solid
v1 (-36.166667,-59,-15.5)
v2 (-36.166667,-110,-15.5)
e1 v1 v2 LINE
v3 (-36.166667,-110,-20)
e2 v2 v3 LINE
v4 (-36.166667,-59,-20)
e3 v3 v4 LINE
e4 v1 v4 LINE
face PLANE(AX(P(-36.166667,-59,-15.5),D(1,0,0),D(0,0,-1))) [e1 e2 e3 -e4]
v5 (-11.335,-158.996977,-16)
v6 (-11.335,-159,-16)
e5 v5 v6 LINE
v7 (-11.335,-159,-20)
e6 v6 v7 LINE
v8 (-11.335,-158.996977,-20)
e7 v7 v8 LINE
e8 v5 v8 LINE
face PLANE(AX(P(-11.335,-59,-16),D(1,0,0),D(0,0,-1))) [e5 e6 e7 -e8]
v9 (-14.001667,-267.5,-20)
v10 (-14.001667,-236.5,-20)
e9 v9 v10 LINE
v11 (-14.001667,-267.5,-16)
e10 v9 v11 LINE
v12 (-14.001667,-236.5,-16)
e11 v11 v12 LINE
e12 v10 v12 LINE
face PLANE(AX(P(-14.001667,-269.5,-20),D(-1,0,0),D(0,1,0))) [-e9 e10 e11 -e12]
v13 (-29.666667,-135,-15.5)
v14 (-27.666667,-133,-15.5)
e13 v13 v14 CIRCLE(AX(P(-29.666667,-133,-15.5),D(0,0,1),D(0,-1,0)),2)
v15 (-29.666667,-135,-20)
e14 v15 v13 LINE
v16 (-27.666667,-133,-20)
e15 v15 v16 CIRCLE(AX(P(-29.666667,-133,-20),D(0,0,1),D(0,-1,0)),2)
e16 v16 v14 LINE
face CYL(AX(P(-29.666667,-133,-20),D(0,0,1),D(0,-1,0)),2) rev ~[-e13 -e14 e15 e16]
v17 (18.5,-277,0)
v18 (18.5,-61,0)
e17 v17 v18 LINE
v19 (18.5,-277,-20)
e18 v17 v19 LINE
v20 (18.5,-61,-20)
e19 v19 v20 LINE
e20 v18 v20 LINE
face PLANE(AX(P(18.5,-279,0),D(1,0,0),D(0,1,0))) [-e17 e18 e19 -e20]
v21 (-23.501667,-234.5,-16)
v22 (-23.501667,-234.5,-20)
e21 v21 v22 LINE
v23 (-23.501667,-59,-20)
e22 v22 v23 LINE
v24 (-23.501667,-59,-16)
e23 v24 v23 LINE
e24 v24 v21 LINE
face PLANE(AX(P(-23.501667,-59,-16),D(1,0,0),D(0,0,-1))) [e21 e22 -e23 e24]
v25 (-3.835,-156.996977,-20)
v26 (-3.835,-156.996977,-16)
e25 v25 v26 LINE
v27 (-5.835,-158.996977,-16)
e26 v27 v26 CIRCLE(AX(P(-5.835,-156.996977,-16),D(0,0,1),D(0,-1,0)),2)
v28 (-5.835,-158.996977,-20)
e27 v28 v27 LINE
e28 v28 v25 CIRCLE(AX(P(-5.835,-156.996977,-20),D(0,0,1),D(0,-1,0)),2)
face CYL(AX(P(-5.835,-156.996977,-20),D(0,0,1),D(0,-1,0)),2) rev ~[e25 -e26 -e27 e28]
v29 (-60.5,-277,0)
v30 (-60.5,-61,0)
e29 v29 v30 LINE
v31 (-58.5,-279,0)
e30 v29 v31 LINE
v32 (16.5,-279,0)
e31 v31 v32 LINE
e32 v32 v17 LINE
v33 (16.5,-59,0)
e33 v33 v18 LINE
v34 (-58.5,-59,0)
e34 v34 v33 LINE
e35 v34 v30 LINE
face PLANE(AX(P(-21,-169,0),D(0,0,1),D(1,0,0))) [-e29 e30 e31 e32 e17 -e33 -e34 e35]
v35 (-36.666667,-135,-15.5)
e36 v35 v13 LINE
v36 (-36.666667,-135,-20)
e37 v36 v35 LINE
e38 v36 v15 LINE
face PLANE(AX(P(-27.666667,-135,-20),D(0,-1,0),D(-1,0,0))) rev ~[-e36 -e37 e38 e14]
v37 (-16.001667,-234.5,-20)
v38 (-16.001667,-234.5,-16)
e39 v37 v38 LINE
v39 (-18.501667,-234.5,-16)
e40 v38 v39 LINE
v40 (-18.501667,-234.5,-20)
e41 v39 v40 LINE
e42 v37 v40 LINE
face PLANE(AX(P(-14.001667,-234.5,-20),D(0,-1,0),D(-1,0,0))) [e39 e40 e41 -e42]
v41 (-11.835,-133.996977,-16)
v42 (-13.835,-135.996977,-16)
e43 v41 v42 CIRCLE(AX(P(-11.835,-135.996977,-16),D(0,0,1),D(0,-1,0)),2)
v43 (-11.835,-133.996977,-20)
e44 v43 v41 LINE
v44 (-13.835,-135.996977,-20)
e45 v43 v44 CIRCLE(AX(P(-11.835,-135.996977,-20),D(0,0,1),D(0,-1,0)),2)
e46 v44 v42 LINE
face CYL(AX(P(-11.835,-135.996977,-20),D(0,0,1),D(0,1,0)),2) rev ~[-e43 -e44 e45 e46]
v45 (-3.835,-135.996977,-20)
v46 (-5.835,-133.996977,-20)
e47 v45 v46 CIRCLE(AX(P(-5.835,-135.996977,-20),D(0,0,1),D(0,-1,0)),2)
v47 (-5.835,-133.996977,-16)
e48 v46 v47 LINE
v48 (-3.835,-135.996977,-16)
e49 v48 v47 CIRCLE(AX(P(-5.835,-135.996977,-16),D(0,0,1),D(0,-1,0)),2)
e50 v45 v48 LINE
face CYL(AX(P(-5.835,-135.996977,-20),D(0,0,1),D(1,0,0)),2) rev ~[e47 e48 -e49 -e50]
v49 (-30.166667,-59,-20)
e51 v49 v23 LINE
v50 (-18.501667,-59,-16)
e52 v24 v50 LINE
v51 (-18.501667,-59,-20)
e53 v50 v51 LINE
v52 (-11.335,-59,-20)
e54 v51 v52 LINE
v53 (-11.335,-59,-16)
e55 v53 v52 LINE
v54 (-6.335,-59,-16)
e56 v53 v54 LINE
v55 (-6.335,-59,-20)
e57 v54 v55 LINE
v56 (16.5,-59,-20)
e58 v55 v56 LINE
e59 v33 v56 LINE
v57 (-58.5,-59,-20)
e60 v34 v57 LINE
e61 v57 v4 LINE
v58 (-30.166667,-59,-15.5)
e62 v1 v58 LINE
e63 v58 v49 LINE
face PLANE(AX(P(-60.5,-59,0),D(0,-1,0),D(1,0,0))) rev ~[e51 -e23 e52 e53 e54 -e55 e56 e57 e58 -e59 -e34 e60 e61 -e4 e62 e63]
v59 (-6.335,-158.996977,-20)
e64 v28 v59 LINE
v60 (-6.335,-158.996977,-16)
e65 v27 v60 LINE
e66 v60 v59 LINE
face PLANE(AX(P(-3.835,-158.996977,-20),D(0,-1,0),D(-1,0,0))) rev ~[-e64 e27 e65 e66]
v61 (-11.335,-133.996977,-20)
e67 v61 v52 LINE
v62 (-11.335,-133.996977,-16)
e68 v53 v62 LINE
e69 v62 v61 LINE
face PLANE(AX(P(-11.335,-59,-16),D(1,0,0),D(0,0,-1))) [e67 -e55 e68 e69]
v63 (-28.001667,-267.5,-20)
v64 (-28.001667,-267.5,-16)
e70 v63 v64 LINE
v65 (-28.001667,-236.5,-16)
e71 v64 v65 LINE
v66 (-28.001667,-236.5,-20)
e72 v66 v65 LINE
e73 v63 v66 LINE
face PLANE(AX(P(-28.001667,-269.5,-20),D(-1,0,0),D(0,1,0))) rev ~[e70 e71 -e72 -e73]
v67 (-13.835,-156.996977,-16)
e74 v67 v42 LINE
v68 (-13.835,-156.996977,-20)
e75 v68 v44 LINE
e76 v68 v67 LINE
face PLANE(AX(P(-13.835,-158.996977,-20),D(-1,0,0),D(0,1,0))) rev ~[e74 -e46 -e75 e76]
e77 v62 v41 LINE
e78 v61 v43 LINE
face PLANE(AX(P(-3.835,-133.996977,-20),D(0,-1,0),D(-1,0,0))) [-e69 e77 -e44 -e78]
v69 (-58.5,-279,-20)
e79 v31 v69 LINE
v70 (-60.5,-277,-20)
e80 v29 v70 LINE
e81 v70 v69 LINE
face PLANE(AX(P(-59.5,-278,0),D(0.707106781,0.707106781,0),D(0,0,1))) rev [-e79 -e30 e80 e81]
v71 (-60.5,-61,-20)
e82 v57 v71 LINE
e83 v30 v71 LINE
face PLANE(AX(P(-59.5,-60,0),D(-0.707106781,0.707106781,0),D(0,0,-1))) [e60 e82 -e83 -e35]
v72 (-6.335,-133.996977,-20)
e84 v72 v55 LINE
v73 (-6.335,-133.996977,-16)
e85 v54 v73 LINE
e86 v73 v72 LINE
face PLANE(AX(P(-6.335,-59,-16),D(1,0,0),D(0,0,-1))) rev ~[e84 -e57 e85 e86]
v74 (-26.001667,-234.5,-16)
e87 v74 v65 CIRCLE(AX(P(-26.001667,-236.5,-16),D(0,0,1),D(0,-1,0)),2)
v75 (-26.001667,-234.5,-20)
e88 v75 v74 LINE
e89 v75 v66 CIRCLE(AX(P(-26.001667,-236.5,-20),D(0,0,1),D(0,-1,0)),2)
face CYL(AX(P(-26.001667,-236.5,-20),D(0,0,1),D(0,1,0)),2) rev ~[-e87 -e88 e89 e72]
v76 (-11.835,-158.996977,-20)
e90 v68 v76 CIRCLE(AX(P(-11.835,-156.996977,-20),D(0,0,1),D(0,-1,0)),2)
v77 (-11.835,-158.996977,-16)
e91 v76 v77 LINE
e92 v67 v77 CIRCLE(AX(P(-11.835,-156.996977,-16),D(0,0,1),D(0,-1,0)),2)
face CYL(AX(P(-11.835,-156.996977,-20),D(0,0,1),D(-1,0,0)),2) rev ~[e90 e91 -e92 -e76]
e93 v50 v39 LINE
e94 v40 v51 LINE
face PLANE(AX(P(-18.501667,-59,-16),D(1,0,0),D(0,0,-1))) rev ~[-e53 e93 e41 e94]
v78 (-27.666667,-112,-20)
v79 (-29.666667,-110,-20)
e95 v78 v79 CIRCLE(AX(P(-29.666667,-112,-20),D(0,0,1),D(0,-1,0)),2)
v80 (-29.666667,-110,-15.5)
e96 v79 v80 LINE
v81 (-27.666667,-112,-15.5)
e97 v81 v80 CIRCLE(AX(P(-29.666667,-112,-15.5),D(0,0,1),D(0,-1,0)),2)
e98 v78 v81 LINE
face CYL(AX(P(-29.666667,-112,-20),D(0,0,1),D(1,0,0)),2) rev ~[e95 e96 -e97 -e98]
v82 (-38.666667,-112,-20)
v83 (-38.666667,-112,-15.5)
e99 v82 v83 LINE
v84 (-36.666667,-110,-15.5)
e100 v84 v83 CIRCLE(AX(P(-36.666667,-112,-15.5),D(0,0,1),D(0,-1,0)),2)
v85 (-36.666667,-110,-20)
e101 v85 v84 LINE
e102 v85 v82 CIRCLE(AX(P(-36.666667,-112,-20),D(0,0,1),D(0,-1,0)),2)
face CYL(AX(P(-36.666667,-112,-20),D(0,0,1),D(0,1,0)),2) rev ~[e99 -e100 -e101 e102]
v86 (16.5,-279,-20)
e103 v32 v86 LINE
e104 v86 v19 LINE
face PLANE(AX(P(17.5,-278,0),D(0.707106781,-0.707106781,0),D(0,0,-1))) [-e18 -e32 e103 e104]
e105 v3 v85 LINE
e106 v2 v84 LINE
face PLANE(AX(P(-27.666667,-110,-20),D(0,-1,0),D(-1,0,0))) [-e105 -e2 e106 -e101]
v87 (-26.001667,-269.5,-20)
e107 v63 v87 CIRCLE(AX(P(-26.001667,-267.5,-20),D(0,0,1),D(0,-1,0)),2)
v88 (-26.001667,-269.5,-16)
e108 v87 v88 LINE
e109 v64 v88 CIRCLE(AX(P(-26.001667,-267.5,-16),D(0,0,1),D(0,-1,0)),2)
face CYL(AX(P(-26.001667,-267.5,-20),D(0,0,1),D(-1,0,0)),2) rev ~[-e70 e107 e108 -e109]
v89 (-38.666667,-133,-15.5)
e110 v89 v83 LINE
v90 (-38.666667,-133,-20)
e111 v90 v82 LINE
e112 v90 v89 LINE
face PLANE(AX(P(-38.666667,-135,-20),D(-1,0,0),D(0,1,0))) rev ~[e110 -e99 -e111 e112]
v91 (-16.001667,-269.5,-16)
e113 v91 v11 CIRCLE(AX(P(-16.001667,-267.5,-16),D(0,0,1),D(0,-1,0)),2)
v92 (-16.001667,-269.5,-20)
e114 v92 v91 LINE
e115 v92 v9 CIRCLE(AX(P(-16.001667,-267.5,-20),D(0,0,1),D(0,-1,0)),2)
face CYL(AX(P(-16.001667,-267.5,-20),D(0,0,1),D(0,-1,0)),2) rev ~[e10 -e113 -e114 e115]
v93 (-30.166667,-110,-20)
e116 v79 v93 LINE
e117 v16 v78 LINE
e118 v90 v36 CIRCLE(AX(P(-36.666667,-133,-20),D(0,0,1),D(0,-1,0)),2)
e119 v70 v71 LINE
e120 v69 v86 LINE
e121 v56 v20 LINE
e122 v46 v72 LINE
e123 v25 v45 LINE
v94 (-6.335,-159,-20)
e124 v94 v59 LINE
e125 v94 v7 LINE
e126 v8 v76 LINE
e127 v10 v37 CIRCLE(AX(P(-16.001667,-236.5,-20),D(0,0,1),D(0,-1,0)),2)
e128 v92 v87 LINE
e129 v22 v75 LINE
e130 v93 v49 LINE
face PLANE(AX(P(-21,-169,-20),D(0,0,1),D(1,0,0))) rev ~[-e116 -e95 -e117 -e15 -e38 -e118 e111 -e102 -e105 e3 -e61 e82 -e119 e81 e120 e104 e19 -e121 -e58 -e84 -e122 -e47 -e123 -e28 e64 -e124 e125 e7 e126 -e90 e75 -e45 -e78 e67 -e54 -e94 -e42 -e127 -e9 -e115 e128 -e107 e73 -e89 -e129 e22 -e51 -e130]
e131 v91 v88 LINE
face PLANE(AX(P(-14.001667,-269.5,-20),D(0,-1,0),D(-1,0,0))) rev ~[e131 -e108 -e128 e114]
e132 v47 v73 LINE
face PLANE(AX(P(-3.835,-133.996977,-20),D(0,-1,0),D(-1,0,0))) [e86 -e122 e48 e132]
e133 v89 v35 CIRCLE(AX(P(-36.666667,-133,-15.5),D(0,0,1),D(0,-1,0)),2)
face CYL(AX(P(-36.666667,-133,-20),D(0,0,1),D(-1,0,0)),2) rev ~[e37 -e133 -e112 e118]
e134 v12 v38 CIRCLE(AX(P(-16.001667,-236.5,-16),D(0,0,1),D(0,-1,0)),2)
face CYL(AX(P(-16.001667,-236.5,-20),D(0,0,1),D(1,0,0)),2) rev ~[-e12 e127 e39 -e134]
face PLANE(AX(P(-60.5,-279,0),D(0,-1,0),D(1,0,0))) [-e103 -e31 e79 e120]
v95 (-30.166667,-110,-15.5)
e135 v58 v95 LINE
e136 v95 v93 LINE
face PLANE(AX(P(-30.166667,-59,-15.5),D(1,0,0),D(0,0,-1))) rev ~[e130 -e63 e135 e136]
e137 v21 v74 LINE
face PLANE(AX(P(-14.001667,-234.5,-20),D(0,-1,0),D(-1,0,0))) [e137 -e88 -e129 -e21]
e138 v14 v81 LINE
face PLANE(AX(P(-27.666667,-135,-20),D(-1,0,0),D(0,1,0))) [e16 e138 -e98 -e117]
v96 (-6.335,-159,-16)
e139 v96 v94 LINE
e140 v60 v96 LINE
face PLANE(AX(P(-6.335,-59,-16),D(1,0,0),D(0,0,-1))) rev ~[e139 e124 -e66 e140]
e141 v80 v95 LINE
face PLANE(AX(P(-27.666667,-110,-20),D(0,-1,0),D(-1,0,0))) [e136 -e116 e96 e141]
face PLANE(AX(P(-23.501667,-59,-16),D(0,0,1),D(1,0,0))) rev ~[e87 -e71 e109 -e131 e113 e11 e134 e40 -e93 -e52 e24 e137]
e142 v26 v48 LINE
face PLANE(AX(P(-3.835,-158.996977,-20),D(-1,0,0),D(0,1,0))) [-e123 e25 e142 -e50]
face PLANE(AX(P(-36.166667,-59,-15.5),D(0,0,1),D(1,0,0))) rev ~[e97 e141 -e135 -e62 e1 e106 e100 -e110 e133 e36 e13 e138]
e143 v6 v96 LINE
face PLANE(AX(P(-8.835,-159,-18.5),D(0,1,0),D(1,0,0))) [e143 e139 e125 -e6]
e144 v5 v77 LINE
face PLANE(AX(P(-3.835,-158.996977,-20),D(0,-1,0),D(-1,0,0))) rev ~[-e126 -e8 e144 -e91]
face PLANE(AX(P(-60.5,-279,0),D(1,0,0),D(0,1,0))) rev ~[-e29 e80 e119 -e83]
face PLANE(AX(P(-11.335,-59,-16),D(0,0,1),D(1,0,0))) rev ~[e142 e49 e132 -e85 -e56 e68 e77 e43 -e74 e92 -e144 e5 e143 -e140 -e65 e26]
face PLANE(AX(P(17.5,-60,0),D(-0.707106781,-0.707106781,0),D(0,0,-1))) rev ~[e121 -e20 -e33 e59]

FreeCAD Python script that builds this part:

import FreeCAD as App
import Part
import Sketcher
from FreeCAD import Vector


def edges_at(feature, points):
    """Names of the edges that pass closest to the given points."""
    edges = feature.Shape.Edges
    near = lambda p: min(range(len(edges)), key=lambda i: edges[i].distToShape(Part.Vertex(*p))[0])
    return sorted({f"Edge{near(p) + 1}" for p in points})


def add_polygon(sketch, points):
    """Adds a closed chain of lines whose ends are joined by coincident constraints."""
    first, n = sketch.GeometryCount, len(points)
    for a, b in zip(points, points[1:] + points[:1]):
        sketch.addGeometry(Part.LineSegment(App.Vector(*a, 0), App.Vector(*b, 0)), False)
    for i in range(n):
        sketch.addConstraint(Sketcher.Constraint("Coincident", first + i, 2, first + (i + 1) % n, 1))

doc = App.newDocument("Part")
params = doc.addObject("Spreadsheet::Sheet", "Params")
for row, (alias, value) in enumerate([
    ("sketch1_width", "79 mm"),
    ("sketch1_height", "220 mm"),
    ("pad1_length", "20 mm"),
    ("sketch2_width", "6 mm"),
    ("pocket1_length", "76 mm"),
    ("sketch3_width", "5 mm"),
    ("pocket2_length", "189 mm"),
    ("sketch4_width", "5 mm"),
    ("pocket3_length", "100 mm"),
    ("sketch5_width", "10 mm"),
    ("sketch5_height", "25 mm"),
    ("pocket4_length", "4 mm"),
    ("fillet_radius", "2 mm"),
    ("sketch6_width", "11 mm"),
    ("sketch6_height", "25 mm"),
    ("pocket5_length", "4.5 mm"),
    ("fillet2_radius", "2 mm"),
    ("sketch7_width", "14 mm"),
    ("sketch7_height", "35 mm"),
    ("pocket6_length", "4 mm"),
    ("fillet3_radius", "2 mm"),
    ("chamfer_size", "2 mm"),
], start=1):
    params.set(f"A{row}", alias)
    params.set(f"B{row}", "=" + value)
    params.setAlias(f"B{row}", alias)

body = doc.addObject("PartDesign::Body", "Body")

sketch1 = body.newObject("Sketcher::SketchObject", "Sketch")
sketch1.AttachmentSupport = (doc.getObject("XY_Plane"), [""])
sketch1.MapMode = "FlatFace"
add_polygon(sketch1, [(-60, -59), (-60, -279), (18, -279), (18, -59)])
sketch1.addConstraint([
    Sketcher.Constraint("Vertical", 0),
    Sketcher.Constraint("Horizontal", 1),
    Sketcher.Constraint("Vertical", 2),
    Sketcher.Constraint("Horizontal", 3),
    Sketcher.Constraint("DistanceX", 1, 1, 1, 2, 79.0),
    Sketcher.Constraint("DistanceY", 0, 2, 0, 1, 220.0),
    Sketcher.Constraint("DistanceY", 0, 2, -1, 1, 279.0),
    Sketcher.Constraint("DistanceX", 0, 2, -1, 1, 60.5),
])
sketch1.setExpression("Constraints[8]", "Params.sketch1_width")
sketch1.setExpression("Constraints[9]", "Params.sketch1_height")
pad1 = body.newObject("PartDesign::Pad", "Pad")
pad1.Profile = sketch1
pad1.setExpression("Length", "Params.pad1_length")
pad1.Reversed = True

sketch2 = body.newObject("Sketcher::SketchObject", "Sketch001")
sketch2.AttachmentSupport = (doc.getObject("XZ_Plane"), [""])
sketch2.MapMode = "FlatFace"
sketch2.AttachmentOffset = App.Placement(Vector(0, 0, 59), App.Rotation())
add_polygon(sketch2, [(-36, -22), (-36, -16), (-30, -16), (-30, -22)])
sketch2.addConstraint([
    Sketcher.Constraint("Vertical", 0),
    Sketcher.Constraint("Horizontal", 1),
    Sketcher.Constraint("Vertical", 2),
    Sketcher.Constraint("Horizontal", 3),
    Sketcher.Constraint("Equal", 3, 0),
    Sketcher.Constraint("DistanceX", 1, 1, 1, 2, 6.0),
    Sketcher.Constraint("DistanceY", 0, 2, -1, 1, 15.5),
    Sketcher.Constraint("DistanceX", 0, 2, -1, 1, 36.166667),
])
sketch2.setExpression("Constraints[9]", "Params.sketch2_width")
pocket1 = body.newObject("PartDesign::Pocket", "Pocket")
pocket1.Profile = sketch2
pocket1.setExpression("Length", "Params.pocket1_length")
pocket1.Reversed = True

sketch3 = body.newObject("Sketcher::SketchObject", "Sketch002")
sketch3.AttachmentSupport = (doc.getObject("XZ_Plane"), [""])
sketch3.MapMode = "FlatFace"
sketch3.AttachmentOffset = App.Placement(Vector(0, 0, 59), App.Rotation())
add_polygon(sketch3, [(-24, -21), (-24, -16), (-19, -16), (-19, -21)])
sketch3.addConstraint([
    Sketcher.Constraint("Vertical", 0),
    Sketcher.Constraint("Horizontal", 1),
    Sketcher.Constraint("Vertical", 2),
    Sketcher.Constraint("Horizontal", 3),
    Sketcher.Constraint("Equal", 3, 0),
    Sketcher.Constraint("DistanceX", 1, 1, 1, 2, 5.0),
    Sketcher.Constraint("DistanceY", 0, 2, -1, 1, 16.0),
    Sketcher.Constraint("DistanceX", 0, 2, -1, 1, 23.501667),
])
sketch3.setExpression("Constraints[9]", "Params.sketch3_width")
pocket2 = body.newObject("PartDesign::Pocket", "Pocket001")
pocket2.Profile = sketch3
pocket2.setExpression("Length", "Params.pocket2_length")
pocket2.Reversed = True

sketch4 = body.newObject("Sketcher::SketchObject", "Sketch003")
sketch4.AttachmentSupport = (doc.getObject("XZ_Plane"), [""])
sketch4.MapMode = "FlatFace"
sketch4.AttachmentOffset = App.Placement(Vector(0, 0, 59), App.Rotation())
add_polygon(sketch4, [(-11, -21), (-11, -16), (-6, -16), (-6, -21)])
sketch4.addConstraint([
    Sketcher.Constraint("Vertical", 0),
    Sketcher.Constraint("Horizontal", 1),
    Sketcher.Constraint("Vertical", 2),
    Sketcher.Constraint("Horizontal", 3),
    Sketcher.Constraint("Equal", 3, 0),
    Sketcher.Constraint("DistanceX", 1, 1, 1, 2, 5.0),
    Sketcher.Constraint("DistanceY", 0, 2, -1, 1, 16.0),
    Sketcher.Constraint("DistanceX", 0, 2, -1, 1, 11.335),
])
sketch4.setExpression("Constraints[9]", "Params.sketch4_width")
pocket3 = body.newObject("PartDesign::Pocket", "Pocket002")
pocket3.Profile = sketch4
pocket3.setExpression("Length", "Params.pocket3_length")
pocket3.Reversed = True

sketch5 = body.newObject("Sketcher::SketchObject", "Sketch004")
sketch5.AttachmentSupport = (doc.getObject("XY_Plane"), [""])
sketch5.MapMode = "FlatFace"
sketch5.AttachmentOffset = App.Placement(Vector(0, 0, -20), App.Rotation())
add_polygon(sketch5, [(-4, -134), (-4, -159), (-14, -159), (-14, -134)])
sketch5.addConstraint([
    Sketcher.Constraint("Vertical", 0),
    Sketcher.Constraint("Horizontal", 1),
    Sketcher.Constraint("Vertical", 2),
    Sketcher.Constraint("Horizontal", 3),
    Sketcher.Constraint("DistanceX", 1, 2, 1, 1, 10.0),
    Sketcher.Constraint("DistanceY", 0, 2, 0, 1, 25.0),
    Sketcher.Constraint("DistanceX", 0, 2, -1, 1, 3.835),
    Sketcher.Constraint("DistanceY", 0, 2, -1, 1, 158.996977),
])
sketch5.setExpression("Constraints[8]", "Params.sketch5_width")
sketch5.setExpression("Constraints[9]", "Params.sketch5_height")
pocket4 = body.newObject("PartDesign::Pocket", "Pocket003")
pocket4.Profile = sketch5
pocket4.setExpression("Length", "Params.pocket4_length")
pocket4.Reversed = True
doc.recompute()

fillet = body.newObject("PartDesign::Fillet", "Fillet")
fillet.Base = (pocket4, edges_at(pocket4, [
    (-13.835, -158.997, -18),
    (-3.835, -133.997, -18),
    (-13.835, -133.997, -18),
    (-3.835, -158.997, -18),
]))
fillet.setExpression("Radius", "Params.fillet_radius")

sketch6 = body.newObject("Sketcher::SketchObject", "Sketch005")
sketch6.AttachmentSupport = (doc.getObject("XY_Plane"), [""])
sketch6.MapMode = "FlatFace"
sketch6.AttachmentOffset = App.Placement(Vector(0, 0, -20), App.Rotation())
add_polygon(sketch6, [(-28, -110), (-28, -135), (-39, -135), (-39, -110)])
sketch6.addConstraint([
    Sketcher.Constraint("Vertical", 0),
    Sketcher.Constraint("Horizontal", 1),
    Sketcher.Constraint("Vertical", 2),
    Sketcher.Constraint("Horizontal", 3),
    Sketcher.Constraint("DistanceX", 1, 2, 1, 1, 11.0),
    Sketcher.Constraint("DistanceY", 0, 2, 0, 1, 25.0),
    Sketcher.Constraint("DistanceY", 0, 2, -1, 1, 135.0),
    Sketcher.Constraint("DistanceX", 0, 2, -1, 1, 27.666667),
])
sketch6.setExpression("Constraints[8]", "Params.sketch6_width")
sketch6.setExpression("Constraints[9]", "Params.sketch6_height")
pocket5 = body.newObject("PartDesign::Pocket", "Pocket004")
pocket5.Profile = sketch6
pocket5.setExpression("Length", "Params.pocket5_length")
pocket5.Reversed = True
doc.recompute()

fillet2 = body.newObject("PartDesign::Fillet", "Fillet001")
fillet2.Base = (pocket5, edges_at(pocket5, [
    (-38.667, -135, -17.75),
    (-27.667, -110, -17.75),
    (-38.667, -110, -17.75),
    (-27.667, -135, -17.75),
]))
fillet2.setExpression("Radius", "Params.fillet2_radius")

sketch7 = body.newObject("Sketcher::SketchObject", "Sketch006")
sketch7.AttachmentSupport = (doc.getObject("XY_Plane"), [""])
sketch7.MapMode = "FlatFace"
sketch7.AttachmentOffset = App.Placement(Vector(0, 0, -20), App.Rotation())
add_polygon(sketch7, [(-14, -234), (-14, -270), (-28, -270), (-28, -234)])
sketch7.addConstraint([
    Sketcher.Constraint("Vertical", 0),
    Sketcher.Constraint("Horizontal", 1),
    Sketcher.Constraint("Vertical", 2),
    Sketcher.Constraint("Horizontal", 3),
    Sketcher.Constraint("DistanceX", 1, 2, 1, 1, 14.0),
    Sketcher.Constraint("DistanceY", 0, 2, 0, 1, 35.0),
    Sketcher.Constraint("DistanceY", 0, 2, -1, 1, 269.5),
    Sketcher.Constraint("DistanceX", 0, 2, -1, 1, 14.001667),
])
sketch7.setExpression("Constraints[8]", "Params.sketch7_width")
sketch7.setExpression("Constraints[9]", "Params.sketch7_height")
pocket6 = body.newObject("PartDesign::Pocket", "Pocket005")
pocket6.Profile = sketch7
pocket6.setExpression("Length", "Params.pocket6_length")
pocket6.Reversed = True
doc.recompute()

fillet3 = body.newObject("PartDesign::Fillet", "Fillet002")
fillet3.Base = (pocket6, edges_at(pocket6, [
    (-14.002, -234.5, -18),
    (-14.002, -269.5, -18),
    (-28.002, -269.5, -18),
    (-28.002, -234.5, -18),
]))
fillet3.setExpression("Radius", "Params.fillet3_radius")
doc.recompute()

chamfer = body.newObject("PartDesign::Chamfer", "Chamfer")
chamfer.Base = (fillet3, edges_at(fillet3, [
    (18.5, -279, -10),
    (-60.5, -279, -10),
    (-60.5, -59, -10),
    (18.5, -59, -10),
]))
chamfer.setExpression("Size", "Params.chamfer_size")

doc.recompute()
